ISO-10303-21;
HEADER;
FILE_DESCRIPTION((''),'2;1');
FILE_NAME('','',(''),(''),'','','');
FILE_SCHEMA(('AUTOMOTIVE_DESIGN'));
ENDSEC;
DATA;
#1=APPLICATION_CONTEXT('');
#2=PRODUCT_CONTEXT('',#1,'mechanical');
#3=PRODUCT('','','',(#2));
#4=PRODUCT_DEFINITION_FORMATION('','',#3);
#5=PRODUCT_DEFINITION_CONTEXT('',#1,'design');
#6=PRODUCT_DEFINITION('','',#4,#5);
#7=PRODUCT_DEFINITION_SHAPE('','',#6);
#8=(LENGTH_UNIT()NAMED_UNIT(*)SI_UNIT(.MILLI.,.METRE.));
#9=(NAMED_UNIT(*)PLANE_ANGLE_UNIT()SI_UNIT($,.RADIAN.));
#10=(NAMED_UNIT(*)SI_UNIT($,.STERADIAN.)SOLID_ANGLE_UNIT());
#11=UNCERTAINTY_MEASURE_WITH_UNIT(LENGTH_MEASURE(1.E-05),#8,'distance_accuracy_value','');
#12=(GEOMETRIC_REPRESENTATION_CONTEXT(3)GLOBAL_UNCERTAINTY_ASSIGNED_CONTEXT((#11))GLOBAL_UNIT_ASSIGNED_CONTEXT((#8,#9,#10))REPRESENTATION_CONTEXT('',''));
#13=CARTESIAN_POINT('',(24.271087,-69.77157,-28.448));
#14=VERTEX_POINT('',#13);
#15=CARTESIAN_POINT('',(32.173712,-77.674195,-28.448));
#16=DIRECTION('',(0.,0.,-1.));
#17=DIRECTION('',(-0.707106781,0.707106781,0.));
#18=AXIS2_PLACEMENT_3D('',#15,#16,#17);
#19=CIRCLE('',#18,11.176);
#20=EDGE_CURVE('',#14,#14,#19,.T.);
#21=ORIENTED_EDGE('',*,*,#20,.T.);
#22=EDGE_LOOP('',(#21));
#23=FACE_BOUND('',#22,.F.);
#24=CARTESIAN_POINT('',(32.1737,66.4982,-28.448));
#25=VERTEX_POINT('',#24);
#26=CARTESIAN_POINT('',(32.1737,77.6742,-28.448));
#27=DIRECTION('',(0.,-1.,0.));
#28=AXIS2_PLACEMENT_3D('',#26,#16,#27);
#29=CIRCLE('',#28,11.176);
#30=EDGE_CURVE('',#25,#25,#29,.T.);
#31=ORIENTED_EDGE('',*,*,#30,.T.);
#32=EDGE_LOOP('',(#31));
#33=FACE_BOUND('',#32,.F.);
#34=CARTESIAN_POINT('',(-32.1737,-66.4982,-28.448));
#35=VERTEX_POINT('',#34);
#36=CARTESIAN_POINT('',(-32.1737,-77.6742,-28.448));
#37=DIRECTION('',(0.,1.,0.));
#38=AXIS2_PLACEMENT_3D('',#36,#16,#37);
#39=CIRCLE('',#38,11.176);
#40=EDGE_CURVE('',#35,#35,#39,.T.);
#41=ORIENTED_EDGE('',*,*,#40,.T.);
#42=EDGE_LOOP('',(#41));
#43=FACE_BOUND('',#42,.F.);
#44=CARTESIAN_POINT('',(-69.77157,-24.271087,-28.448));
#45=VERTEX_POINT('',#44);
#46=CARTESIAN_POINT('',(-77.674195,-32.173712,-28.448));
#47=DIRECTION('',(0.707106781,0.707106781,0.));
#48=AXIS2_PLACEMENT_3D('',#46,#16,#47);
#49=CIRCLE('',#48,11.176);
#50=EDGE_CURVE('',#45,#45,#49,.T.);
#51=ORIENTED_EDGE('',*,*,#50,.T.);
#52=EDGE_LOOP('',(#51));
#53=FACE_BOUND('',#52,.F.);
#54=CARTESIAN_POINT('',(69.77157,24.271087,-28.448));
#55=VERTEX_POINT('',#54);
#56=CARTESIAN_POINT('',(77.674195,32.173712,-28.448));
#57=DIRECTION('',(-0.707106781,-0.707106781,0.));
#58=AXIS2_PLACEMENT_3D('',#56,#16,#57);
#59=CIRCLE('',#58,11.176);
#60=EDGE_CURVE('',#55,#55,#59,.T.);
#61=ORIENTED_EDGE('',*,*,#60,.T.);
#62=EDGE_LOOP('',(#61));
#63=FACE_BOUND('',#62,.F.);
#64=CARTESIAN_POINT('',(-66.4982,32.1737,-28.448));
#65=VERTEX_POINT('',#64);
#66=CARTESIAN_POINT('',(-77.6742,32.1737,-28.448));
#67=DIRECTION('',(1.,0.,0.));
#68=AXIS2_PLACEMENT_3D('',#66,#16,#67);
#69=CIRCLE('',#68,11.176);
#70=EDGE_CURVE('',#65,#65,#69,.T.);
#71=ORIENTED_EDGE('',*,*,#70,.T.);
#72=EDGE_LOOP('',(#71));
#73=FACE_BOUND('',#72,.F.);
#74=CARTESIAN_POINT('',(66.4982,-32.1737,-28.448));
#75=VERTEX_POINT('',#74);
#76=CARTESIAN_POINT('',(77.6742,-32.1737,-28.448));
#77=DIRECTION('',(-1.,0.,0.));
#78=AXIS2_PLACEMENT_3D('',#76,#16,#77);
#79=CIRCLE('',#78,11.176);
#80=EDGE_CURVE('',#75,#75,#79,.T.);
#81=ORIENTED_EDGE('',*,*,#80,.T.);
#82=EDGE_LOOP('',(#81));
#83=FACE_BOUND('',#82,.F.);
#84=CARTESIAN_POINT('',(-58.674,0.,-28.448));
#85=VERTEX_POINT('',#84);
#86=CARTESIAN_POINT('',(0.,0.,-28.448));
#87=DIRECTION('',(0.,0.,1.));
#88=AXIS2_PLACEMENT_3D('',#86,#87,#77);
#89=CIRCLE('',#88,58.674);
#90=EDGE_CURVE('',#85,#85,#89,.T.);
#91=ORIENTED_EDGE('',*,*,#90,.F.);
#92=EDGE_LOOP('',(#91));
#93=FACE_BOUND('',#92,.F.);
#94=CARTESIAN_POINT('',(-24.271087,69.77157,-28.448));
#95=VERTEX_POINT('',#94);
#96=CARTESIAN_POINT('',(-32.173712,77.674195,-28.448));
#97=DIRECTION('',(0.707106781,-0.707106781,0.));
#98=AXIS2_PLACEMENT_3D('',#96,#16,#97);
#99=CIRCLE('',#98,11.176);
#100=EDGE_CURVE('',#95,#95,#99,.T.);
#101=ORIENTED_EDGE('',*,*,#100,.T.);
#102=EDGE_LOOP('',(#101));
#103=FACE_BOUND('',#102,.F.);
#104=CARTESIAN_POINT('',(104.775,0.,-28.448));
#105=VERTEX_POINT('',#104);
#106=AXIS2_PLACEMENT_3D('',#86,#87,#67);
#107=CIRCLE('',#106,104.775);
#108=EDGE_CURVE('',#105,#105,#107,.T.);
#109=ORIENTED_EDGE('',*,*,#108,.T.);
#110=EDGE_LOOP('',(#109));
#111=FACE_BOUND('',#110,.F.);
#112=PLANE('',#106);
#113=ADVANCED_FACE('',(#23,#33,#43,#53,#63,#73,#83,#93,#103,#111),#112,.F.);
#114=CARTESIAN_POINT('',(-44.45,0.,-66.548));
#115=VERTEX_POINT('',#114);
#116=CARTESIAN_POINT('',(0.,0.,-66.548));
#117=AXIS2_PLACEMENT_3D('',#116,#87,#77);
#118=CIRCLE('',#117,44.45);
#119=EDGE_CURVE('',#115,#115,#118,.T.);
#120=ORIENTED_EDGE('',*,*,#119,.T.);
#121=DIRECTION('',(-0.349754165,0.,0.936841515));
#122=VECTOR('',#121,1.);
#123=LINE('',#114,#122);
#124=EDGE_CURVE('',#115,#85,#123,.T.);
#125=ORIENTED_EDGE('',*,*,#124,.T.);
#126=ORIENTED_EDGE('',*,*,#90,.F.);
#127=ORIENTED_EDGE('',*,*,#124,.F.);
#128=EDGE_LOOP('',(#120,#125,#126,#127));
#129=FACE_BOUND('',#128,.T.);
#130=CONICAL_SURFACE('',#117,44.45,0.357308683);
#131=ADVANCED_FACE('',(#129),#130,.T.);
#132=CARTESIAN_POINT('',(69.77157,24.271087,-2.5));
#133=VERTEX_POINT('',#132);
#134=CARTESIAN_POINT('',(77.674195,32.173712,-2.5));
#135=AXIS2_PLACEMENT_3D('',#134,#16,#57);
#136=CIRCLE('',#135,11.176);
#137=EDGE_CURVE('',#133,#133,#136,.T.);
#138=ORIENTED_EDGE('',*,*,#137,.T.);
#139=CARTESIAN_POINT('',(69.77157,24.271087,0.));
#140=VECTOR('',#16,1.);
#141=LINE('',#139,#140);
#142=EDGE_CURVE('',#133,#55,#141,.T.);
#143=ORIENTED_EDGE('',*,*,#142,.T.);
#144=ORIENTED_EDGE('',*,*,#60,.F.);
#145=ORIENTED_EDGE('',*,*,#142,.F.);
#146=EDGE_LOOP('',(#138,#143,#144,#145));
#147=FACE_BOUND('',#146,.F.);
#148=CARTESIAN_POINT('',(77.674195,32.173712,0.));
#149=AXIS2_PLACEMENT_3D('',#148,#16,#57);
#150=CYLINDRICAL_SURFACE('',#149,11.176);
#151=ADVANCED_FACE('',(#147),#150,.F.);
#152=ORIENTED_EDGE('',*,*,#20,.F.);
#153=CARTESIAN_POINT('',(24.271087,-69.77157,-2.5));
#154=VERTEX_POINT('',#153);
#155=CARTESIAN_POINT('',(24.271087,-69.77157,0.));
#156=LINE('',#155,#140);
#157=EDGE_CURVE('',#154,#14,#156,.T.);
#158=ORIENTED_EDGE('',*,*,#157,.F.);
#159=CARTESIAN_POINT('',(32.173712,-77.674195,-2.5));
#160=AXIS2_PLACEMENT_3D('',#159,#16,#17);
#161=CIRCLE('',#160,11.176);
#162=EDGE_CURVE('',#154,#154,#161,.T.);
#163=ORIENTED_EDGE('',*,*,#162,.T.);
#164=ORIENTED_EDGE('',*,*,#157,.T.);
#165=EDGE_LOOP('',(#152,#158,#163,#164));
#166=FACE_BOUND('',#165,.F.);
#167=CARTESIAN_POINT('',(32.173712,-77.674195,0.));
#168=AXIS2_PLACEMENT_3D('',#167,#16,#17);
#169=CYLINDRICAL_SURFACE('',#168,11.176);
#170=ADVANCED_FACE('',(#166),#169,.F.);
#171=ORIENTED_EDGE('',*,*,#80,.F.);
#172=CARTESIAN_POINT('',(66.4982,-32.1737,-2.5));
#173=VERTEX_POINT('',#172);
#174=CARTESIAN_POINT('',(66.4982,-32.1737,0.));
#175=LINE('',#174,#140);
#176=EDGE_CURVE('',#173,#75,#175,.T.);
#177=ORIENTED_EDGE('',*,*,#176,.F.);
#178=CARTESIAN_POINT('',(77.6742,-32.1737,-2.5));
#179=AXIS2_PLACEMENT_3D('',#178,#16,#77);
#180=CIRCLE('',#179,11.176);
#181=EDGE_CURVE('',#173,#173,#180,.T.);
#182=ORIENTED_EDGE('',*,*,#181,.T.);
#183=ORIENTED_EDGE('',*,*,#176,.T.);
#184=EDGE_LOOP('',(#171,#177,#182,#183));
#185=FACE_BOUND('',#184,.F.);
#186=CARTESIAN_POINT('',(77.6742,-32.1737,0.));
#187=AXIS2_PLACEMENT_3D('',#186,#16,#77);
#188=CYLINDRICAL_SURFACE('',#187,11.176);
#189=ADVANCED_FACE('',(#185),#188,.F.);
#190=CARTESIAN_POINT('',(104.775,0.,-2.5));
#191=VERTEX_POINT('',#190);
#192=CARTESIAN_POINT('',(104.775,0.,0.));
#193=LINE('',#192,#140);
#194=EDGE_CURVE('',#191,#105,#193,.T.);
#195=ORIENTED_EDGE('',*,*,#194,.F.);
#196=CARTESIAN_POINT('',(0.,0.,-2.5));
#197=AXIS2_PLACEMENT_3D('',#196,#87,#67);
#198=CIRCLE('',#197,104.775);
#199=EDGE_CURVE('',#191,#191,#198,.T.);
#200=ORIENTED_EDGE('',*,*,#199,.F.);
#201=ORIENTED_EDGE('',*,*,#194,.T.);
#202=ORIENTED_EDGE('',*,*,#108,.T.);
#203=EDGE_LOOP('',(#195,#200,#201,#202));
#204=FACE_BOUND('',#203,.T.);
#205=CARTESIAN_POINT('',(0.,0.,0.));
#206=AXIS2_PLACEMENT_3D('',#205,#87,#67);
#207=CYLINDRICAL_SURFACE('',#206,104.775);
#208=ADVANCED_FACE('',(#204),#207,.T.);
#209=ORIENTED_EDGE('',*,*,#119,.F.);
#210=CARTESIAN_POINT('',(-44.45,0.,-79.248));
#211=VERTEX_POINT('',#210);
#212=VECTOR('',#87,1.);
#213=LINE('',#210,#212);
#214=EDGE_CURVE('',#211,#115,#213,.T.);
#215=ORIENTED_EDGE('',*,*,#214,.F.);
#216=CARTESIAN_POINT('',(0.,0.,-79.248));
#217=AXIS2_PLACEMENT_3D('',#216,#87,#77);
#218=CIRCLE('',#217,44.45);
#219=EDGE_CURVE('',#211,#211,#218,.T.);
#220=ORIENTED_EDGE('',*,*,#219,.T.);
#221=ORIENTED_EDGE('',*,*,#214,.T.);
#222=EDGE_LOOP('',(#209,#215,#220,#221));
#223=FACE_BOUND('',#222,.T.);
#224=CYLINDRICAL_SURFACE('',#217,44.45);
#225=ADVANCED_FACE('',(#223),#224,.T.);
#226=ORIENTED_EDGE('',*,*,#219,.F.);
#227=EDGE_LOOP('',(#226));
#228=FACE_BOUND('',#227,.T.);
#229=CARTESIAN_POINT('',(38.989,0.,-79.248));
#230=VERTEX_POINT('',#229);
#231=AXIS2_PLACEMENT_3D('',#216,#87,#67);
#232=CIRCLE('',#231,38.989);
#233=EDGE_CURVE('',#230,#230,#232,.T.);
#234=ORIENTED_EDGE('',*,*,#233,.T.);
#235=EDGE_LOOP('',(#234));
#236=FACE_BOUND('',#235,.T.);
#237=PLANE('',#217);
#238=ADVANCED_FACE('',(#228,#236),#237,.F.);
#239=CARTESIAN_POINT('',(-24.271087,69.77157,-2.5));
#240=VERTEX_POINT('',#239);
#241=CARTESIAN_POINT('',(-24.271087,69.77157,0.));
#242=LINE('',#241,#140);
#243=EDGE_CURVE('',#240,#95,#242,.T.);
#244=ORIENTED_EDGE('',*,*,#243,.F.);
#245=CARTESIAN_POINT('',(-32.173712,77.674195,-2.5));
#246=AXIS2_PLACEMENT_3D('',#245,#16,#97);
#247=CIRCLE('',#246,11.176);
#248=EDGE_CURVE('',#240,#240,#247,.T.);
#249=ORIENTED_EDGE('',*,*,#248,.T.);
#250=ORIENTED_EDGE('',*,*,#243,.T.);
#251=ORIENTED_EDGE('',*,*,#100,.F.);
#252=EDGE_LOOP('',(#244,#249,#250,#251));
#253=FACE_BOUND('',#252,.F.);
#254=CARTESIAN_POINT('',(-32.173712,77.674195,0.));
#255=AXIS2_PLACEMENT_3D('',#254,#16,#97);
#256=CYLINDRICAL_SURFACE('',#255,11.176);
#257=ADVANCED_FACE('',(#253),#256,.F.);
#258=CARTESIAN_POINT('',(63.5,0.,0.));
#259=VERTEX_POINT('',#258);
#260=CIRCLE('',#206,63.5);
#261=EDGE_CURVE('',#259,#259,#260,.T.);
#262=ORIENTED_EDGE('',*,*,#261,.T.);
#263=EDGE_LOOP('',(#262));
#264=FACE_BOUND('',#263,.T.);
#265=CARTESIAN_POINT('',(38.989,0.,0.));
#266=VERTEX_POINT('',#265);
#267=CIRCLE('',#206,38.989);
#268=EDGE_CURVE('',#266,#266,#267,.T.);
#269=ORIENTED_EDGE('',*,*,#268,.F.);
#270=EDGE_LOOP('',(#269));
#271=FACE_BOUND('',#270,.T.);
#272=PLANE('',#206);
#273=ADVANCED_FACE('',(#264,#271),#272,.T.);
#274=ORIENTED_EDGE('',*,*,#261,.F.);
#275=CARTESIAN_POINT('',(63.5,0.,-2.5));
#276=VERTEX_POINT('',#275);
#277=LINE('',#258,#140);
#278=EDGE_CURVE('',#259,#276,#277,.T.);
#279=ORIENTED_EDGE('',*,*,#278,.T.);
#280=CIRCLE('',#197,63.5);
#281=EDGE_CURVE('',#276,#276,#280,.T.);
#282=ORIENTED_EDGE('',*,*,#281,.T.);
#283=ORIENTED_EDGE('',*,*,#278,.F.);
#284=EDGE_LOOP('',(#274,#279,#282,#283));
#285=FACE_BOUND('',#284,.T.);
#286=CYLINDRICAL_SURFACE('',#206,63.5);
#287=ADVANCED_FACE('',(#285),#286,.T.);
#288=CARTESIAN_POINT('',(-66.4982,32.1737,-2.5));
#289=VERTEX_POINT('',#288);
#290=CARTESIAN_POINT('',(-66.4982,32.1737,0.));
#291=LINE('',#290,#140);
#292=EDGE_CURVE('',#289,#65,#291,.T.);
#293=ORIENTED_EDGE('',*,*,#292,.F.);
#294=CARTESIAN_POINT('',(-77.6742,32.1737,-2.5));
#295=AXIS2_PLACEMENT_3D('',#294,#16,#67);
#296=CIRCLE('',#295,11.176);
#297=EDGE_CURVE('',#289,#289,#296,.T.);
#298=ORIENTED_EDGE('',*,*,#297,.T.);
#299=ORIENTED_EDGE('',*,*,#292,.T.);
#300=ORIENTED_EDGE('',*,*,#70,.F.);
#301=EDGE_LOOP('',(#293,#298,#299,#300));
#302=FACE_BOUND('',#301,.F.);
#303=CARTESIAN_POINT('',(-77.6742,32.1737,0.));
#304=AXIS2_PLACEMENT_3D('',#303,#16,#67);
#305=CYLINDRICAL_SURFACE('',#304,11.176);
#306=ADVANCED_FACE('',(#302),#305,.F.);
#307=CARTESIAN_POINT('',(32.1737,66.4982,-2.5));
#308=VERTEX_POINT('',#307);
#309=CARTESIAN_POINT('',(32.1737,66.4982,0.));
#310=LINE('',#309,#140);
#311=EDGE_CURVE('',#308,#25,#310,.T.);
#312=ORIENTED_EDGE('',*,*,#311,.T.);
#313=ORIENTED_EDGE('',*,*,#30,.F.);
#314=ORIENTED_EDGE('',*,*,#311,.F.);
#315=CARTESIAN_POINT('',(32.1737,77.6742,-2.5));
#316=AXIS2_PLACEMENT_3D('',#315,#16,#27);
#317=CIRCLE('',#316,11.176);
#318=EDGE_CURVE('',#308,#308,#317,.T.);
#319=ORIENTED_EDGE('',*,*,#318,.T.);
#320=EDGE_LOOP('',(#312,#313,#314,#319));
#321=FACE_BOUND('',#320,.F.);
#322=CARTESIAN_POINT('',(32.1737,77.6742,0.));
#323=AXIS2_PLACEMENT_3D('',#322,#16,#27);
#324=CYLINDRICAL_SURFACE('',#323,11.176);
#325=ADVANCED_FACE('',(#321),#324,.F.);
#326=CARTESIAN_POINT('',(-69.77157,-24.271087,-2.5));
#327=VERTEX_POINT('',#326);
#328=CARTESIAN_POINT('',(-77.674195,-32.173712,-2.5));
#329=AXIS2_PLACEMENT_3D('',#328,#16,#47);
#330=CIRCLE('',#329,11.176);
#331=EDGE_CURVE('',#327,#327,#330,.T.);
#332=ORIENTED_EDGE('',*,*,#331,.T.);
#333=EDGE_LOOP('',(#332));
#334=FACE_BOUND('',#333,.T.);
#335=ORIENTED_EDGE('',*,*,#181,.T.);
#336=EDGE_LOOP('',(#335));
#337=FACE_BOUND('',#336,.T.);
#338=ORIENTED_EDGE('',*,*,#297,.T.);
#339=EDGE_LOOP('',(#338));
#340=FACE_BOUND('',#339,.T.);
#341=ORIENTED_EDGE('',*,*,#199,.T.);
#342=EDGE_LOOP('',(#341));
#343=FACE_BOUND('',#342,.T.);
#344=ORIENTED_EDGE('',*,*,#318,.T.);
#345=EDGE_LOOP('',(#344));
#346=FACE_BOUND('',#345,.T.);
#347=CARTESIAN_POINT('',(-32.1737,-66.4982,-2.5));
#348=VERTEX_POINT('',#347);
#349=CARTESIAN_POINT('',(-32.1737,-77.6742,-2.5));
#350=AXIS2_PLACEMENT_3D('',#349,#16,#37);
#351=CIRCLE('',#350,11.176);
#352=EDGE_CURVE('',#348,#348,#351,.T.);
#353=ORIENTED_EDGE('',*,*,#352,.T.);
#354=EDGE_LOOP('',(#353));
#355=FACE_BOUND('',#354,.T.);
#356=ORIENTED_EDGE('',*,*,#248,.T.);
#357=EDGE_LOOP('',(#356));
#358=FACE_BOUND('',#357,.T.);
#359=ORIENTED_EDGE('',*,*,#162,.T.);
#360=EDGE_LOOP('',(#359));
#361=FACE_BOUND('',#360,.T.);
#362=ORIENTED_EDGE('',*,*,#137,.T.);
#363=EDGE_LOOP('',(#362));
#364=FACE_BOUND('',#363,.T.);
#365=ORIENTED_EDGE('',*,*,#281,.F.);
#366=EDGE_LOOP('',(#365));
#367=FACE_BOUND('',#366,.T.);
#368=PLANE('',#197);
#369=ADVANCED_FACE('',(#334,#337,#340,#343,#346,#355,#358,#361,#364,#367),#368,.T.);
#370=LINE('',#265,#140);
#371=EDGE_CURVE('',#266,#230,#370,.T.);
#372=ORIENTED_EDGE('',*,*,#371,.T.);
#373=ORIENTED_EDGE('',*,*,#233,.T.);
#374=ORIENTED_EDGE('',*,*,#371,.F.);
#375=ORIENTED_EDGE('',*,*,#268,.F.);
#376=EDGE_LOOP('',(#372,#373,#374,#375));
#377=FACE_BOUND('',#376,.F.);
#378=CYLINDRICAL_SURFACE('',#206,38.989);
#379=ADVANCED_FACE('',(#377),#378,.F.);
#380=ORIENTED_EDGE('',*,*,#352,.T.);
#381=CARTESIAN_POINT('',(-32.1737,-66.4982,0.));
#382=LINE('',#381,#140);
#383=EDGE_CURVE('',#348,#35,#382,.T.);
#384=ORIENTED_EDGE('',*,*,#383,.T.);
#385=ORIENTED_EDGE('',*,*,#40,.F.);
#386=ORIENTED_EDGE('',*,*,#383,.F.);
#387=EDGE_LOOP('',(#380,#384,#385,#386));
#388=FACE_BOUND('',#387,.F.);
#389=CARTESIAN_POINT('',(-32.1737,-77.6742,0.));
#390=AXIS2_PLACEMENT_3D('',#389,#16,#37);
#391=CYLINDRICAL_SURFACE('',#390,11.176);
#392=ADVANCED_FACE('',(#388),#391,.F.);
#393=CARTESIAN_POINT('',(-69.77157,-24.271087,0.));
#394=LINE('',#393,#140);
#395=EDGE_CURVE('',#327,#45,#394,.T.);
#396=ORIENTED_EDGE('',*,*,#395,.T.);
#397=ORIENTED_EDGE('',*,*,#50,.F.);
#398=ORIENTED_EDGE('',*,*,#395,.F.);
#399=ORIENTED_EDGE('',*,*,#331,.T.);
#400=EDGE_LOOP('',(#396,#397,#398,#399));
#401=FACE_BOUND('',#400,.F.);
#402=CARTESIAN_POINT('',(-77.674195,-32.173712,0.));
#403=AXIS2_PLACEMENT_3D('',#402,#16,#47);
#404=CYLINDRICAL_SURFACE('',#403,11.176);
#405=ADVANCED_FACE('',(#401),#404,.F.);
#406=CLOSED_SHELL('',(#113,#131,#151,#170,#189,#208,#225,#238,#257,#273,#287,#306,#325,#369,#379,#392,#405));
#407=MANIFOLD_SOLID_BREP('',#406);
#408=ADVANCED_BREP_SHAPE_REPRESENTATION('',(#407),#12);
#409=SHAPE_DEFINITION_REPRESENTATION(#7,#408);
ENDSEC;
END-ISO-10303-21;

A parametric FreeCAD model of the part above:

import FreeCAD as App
import Part
import Sketcher
Q = App.Units.Quantity


def add_polygon(sketch, points):
    """Adds a closed chain of lines whose ends are joined by coincident constraints."""
    first, n = sketch.GeometryCount, len(points)
    for a, b in zip(points, points[1:] + points[:1]):
        sketch.addGeometry(Part.LineSegment(App.Vector(*a, 0), App.Vector(*b, 0)), False)
    for i in range(n):
        sketch.addConstraint(Sketcher.Constraint("Coincident", first + i, 2, first + (i + 1) % n, 1))

doc = App.newDocument("Part")
body = doc.addObject("PartDesign::Body", "Body")

sketch1 = doc.addObject("Sketcher::SketchObject", "Sketch")
body.addObject(sketch1)
sketch1.AttachmentSupport = (doc.XY_Plane, [""])
sketch1.MapMode = "FlatFace"
sketch1.addGeometry(Part.Circle(App.Vector(0, 0, 0), App.Vector(0, 0, 1), 105), False)
sketch1.addConstraint([
    Sketcher.Constraint("Coincident", 0, 3, -1, 1),
    Sketcher.Constraint("Diameter", 0, Q("8.25 in")),
])
pad1 = doc.addObject("PartDesign::Pad", "Pad")
body.addObject(pad1)
pad1.Profile = sketch1
pad1.Length = Q("1.12 in")
pad1.Reversed = True

sketch2 = doc.addObject("Sketcher::SketchObject", "Sketch001")
body.addObject(sketch2)
sketch2.AttachmentSupport = (doc.XY_Plane, [""])
sketch2.MapMode = "FlatFace"
sketch2.addGeometry([
    Part.Circle(App.Vector(0, 0, 0), App.Vector(0, 0, 1), 105),
    Part.Circle(App.Vector(0, 0, 0), App.Vector(0, 0, 1), 64),
], False)
sketch2.addConstraint([
    Sketcher.Constraint("Coincident", 0, 3, -1, 1),
    Sketcher.Constraint("Coincident", 1, 3, -1, 1),
    Sketcher.Constraint("Diameter", 1, Q("5 in")),
    Sketcher.Constraint("Diameter", 0, Q("8.25 in")),
])
pocket1 = doc.addObject("PartDesign::Pocket", "Pocket")
body.addObject(pocket1)
pocket1.Profile = sketch2
pocket1.Length = 2.5

sketch3 = doc.addObject("Sketcher::SketchObject", "Sketch002")
body.addObject(sketch3)
sketch3.AttachmentSupport = (doc.XZ_Plane, [""])
sketch3.MapMode = "FlatFace"
add_polygon(sketch3, [(0, -28), (0, -79), (-44, -79), (-44, -67), (-59, -28)])
sketch3.addConstraint([
    Sketcher.Constraint("Vertical", 0),
    Sketcher.Constraint("Horizontal", 1),
    Sketcher.Constraint("Vertical", 2),
    Sketcher.Constraint("Horizontal", 4),
    Sketcher.Constraint("PointOnObject", 0, 2, -2),
    Sketcher.Constraint("DistanceY", 2, 1, 2, 2, Q("0.5 in")),
    Sketcher.Constraint("DistanceY", 0, 2, 0, 1, Q("2 in")),
    Sketcher.Constraint("DistanceY", 0, 2, -1, 1, Q("3.12 in")),
    Sketcher.Constraint("DistanceX", 1, 2, 1, 1, Q("1.75 in")),
    Sketcher.Constraint("DistanceX", 4, 1, 4, 2, Q("2.31 in")),
])
revolution = doc.addObject("PartDesign::Revolution", "Revolution")
body.addObject(revolution)
revolution.Profile = sketch3
revolution.ReferenceAxis = (sketch3, ["V_Axis"])
revolution.Angle = 360

sketch4 = doc.addObject("Sketcher::SketchObject", "Sketch003")
body.addObject(sketch4)
sketch4.AttachmentSupport = (doc.XY_Plane, [""])
sketch4.MapMode = "FlatFace"
sketch4.addGeometry(Part.Circle(App.Vector(0, 0, 0), App.Vector(0, 0, 1), 39), False)
sketch4.addConstraint([
    Sketcher.Constraint("Coincident", 0, 3, -1, 1),
    Sketcher.Constraint("Diameter", 0, Q("3.07 in")),
])
pocket2 = doc.addObject("PartDesign::Pocket", "Pocket001")
body.addObject(pocket2)
pocket2.Profile = sketch4
pocket2.Type = "ThroughAll"

sketch5 = doc.addObject("Sketcher::SketchObject", "Sketch004")
body.addObject(sketch5)
sketch5.AttachmentSupport = (doc.XY_Plane, [""])
sketch5.MapMode = "FlatFace"
sketch5.addGeometry(Part.Circle(App.Vector(32, 78, 0), App.Vector(0, 0, 1), 11), False)
sketch5.addConstraint([
    Sketcher.Constraint("Diameter", 0, Q("0.88 in")),
    Sketcher.Constraint("DistanceX", -1, 1, 0, 3, 32.1737),
    Sketcher.Constraint("DistanceY", -1, 1, 0, 3, 77.6742),
])
doc.recompute()
hole = doc.addObject("PartDesign::Hole", "Hole")
body.addObject(hole)
hole.Profile = sketch5
hole.ThreadType = "None"
hole.Diameter = Q("0.88 in")
hole.DepthType = "ThroughAll"
doc.recompute()

polarpattern = doc.addObject("PartDesign::PolarPattern", "PolarPattern")
body.addObject(polarpattern)
polarpattern.Originals = [hole]
polarpattern.Axis = (doc.Z_Axis, [""])
polarpattern.Angle = 360
polarpattern.Occurrences = 8
body.Tip = polarpattern

doc.recompute()
